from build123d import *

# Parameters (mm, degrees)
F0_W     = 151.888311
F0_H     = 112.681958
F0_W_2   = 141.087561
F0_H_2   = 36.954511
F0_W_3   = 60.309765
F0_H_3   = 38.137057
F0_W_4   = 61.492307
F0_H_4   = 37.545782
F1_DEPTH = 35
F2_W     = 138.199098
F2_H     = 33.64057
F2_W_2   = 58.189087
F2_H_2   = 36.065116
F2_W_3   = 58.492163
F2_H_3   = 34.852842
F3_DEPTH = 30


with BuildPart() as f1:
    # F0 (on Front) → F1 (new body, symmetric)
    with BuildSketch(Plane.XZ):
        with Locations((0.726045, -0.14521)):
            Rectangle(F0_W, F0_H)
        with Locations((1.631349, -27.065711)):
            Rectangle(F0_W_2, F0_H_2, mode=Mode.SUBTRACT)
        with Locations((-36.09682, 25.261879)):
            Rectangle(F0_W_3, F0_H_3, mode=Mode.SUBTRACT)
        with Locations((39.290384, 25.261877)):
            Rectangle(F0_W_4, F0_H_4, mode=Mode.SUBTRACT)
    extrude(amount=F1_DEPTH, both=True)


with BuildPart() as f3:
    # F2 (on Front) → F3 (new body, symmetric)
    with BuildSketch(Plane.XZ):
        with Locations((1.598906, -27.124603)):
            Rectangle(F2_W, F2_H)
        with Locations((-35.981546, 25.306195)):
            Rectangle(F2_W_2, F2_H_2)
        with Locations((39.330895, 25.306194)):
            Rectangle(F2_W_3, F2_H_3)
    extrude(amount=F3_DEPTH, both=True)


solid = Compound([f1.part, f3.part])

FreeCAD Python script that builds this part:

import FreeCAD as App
import Part
import Sketcher
from FreeCAD import Vector
Q = App.Units.Quantity

doc = App.newDocument("Part")
params = doc.addObject("Spreadsheet::Sheet", "Params")
for row, (alias, value) in enumerate([
    ("pad1_length", "70 mm"),
    ("pad2_length", "60 mm"),
], start=1):
    params.set(f"A{row}", alias)
    params.set(f"B{row}", "=" + value)
    params.setAlias(f"B{row}", alias)

body = doc.addObject("PartDesign::Body", "Body")

# Sketch on XZ plane
sketch1 = doc.addObject("Sketcher::SketchObject", "Sketch")
body.addObject(sketch1)
sketch1.AttachmentSupport = (doc.XZ_Plane, [""])
sketch1.MapMode = "FlatFace"
sketch1.addGeometry([
    Part.LineSegment(Vector(-75, 56, 0), Vector(-75, -56, 0)),  # 0
    Part.LineSegment(Vector(-75, -56, 0), Vector(77, -56, 0)),  # 1
    Part.LineSegment(Vector(77, -56, 0), Vector(77, 56, 0)),  # 2
    Part.LineSegment(Vector(77, 56, 0), Vector(-75, 56, 0)),  # 3
    Part.LineSegment(Vector(72, -46, 0), Vector(-69, -46, 0)),  # 4
    Part.LineSegment(Vector(-69, -46, 0), Vector(-69, -9, 0)),  # 5
    Part.LineSegment(Vector(-69, -9, 0), Vector(72, -9, 0)),  # 6
    Part.LineSegment(Vector(72, -9, 0), Vector(72, -46, 0)),  # 7
    Part.LineSegment(Vector(-6, 6, 0), Vector(-66, 6, 0)),  # 8
    Part.LineSegment(Vector(-66, 6, 0), Vector(-66, 44, 0)),  # 9
    Part.LineSegment(Vector(-66, 44, 0), Vector(-6, 44, 0)),  # 10
    Part.LineSegment(Vector(-6, 44, 0), Vector(-6, 6, 0)),  # 11
    Part.LineSegment(Vector(70, 6, 0), Vector(9, 6, 0)),  # 12
    Part.LineSegment(Vector(9, 6, 0), Vector(9, 44, 0)),  # 13
    Part.LineSegment(Vector(9, 44, 0), Vector(70, 44, 0)),  # 14
    Part.LineSegment(Vector(70, 44, 0), Vector(70, 6, 0)),  # 15
], False)
sketch1.addConstraint([
    Sketcher.Constraint("Coincident", 0, 2, 1, 1),
    Sketcher.Constraint("Coincident", 1, 2, 2, 1),
    Sketcher.Constraint("Coincident", 2, 2, 3, 1),
    Sketcher.Constraint("Coincident", 3, 2, 0, 1),
    Sketcher.Constraint("Coincident", 4, 2, 5, 1),
    Sketcher.Constraint("Coincident", 5, 2, 6, 1),
    Sketcher.Constraint("Coincident", 6, 2, 7, 1),
    Sketcher.Constraint("Coincident", 7, 2, 4, 1),
    Sketcher.Constraint("Coincident", 8, 2, 9, 1),
    Sketcher.Constraint("Coincident", 9, 2, 10, 1),
    Sketcher.Constraint("Coincident", 10, 2, 11, 1),
    Sketcher.Constraint("Coincident", 11, 2, 8, 1),
    Sketcher.Constraint("Coincident", 12, 2, 13, 1),
    Sketcher.Constraint("Coincident", 13, 2, 14, 1),
    Sketcher.Constraint("Coincident", 14, 2, 15, 1),
    Sketcher.Constraint("Coincident", 15, 2, 12, 1),
    Sketcher.Constraint("Vertical", 0),
    Sketcher.Constraint("Horizontal", 1),
    Sketcher.Constraint("Vertical", 2),
    Sketcher.Constraint("Horizontal", 3),
    Sketcher.Constraint("Horizontal", 4),
    Sketcher.Constraint("Vertical", 5),
    Sketcher.Constraint("Horizontal", 6),
    Sketcher.Constraint("Vertical", 7),
    Sketcher.Constraint("Horizontal", 8),
    Sketcher.Constraint("Vertical", 9),
    Sketcher.Constraint("Horizontal", 10),
    Sketcher.Constraint("Vertical", 11),
    Sketcher.Constraint("Horizontal", 12),
    Sketcher.Constraint("Vertical", 13),
    Sketcher.Constraint("Horizontal", 14),
    Sketcher.Constraint("Vertical", 15),
    Sketcher.Constraint("DistanceY", 13, 2, 2, 2, Q("12.161001 mm")),
    Sketcher.Constraint("DistanceX", 1, 1, 1, 2, Q("151.888311 mm")),
    Sketcher.Constraint("DistanceX", 4, 2, 4, 1, Q("141.087561 mm")),
    Sketcher.Constraint("DistanceY", 0, 2, 0, 1, Q("112.681958 mm")),
    Sketcher.Constraint("DistanceY", 5, 1, 5, 2, Q("36.954511 mm")),
    Sketcher.Constraint("DistanceX", -1, 1, 1, 2, Q("76.670201 mm")),
    Sketcher.Constraint("DistanceX", 12, 2, 6, 2, Q("63.630899 mm")),
    Sketcher.Constraint("DistanceX", 8, 2, 8, 1, Q("60.309765 mm")),
    Sketcher.Constraint("DistanceX", 12, 2, 12, 1, Q("61.492307 mm")),
    Sketcher.Constraint("DistanceY", 9, 1, 9, 2, Q("38.137057 mm")),
    Sketcher.Constraint("DistanceY", 13, 1, 13, 2, Q("37.545782 mm")),
    Sketcher.Constraint("DistanceY", 0, 2, -1, 1, Q("56.486189 mm")),
    Sketcher.Constraint("DistanceX", 4, 2, -1, 1, Q("68.912431 mm")),
    Sketcher.Constraint("DistanceY", -1, 1, 8, 2, Q("6.193351 mm")),
    Sketcher.Constraint("DistanceX", 5, 2, 8, 2, Q("2.660729 mm")),
    Sketcher.Constraint("DistanceY", 6, 2, 12, 2, Q("15.077441 mm")),
])
pad1 = doc.addObject("PartDesign::Pad", "Pad")
body.addObject(pad1)
pad1.Profile = sketch1
pad1.setExpression("Length", "Params.pad1_length")
pad1.Midplane = True
body2 = doc.addObject("PartDesign::Body", "Body001")
body2.AllowCompound = True

# Sketch on XZ plane
sketch2 = doc.addObject("Sketcher::SketchObject", "Sketch001")
body2.addObject(sketch2)
sketch2.AttachmentSupport = (doc.getObject("XZ_Plane001"), [""])
sketch2.MapMode = "FlatFace"
sketch2.addGeometry([
    Part.LineSegment(Vector(-68, -10, 0), Vector(-68, -44, 0)),  # 0
    Part.LineSegment(Vector(-68, -44, 0), Vector(71, -44, 0)),  # 1
    Part.LineSegment(Vector(71, -44, 0), Vector(71, -10, 0)),  # 2
    Part.LineSegment(Vector(71, -10, 0), Vector(-68, -10, 0)),  # 3
    Part.LineSegment(Vector(-65, 43, 0), Vector(-65, 7, 0)),  # 4
    Part.LineSegment(Vector(-65, 7, 0), Vector(-7, 7, 0)),  # 5
    Part.LineSegment(Vector(-7, 7, 0), Vector(-7, 43, 0)),  # 6
    Part.LineSegment(Vector(-7, 43, 0), Vector(-65, 43, 0)),  # 7
    Part.LineSegment(Vector(10, 43, 0), Vector(10, 8, 0)),  # 8
    Part.LineSegment(Vector(10, 8, 0), Vector(69, 8, 0)),  # 9
    Part.LineSegment(Vector(69, 8, 0), Vector(69, 43, 0)),  # 10
    Part.LineSegment(Vector(69, 43, 0), Vector(10, 43, 0)),  # 11
], False)
sketch2.addConstraint([
    Sketcher.Constraint("Coincident", 0, 2, 1, 1),
    Sketcher.Constraint("Coincident", 1, 2, 2, 1),
    Sketcher.Constraint("Coincident", 2, 2, 3, 1),
    Sketcher.Constraint("Coincident", 3, 2, 0, 1),
    Sketcher.Constraint("Coincident", 4, 2, 5, 1),
    Sketcher.Constraint("Coincident", 5, 2, 6, 1),
    Sketcher.Constraint("Coincident", 6, 2, 7, 1),
    Sketcher.Constraint("Coincident", 7, 2, 4, 1),
    Sketcher.Constraint("Coincident", 8, 2, 9, 1),
    Sketcher.Constraint("Coincident", 9, 2, 10, 1),
    Sketcher.Constraint("Coincident", 10, 2, 11, 1),
    Sketcher.Constraint("Coincident", 11, 2, 8, 1),
    Sketcher.Constraint("Vertical", 0),
    Sketcher.Constraint("Horizontal", 1),
    Sketcher.Constraint("Vertical", 2),
    Sketcher.Constraint("Horizontal", 3),
    Sketcher.Constraint("Vertical", 4),
    Sketcher.Constraint("Horizontal", 5),
    Sketcher.Constraint("Vertical", 6),
    Sketcher.Constraint("Horizontal", 7),
    Sketcher.Constraint("Vertical", 8),
    Sketcher.Constraint("Horizontal", 9),
    Sketcher.Constraint("Vertical", 10),
    Sketcher.Constraint("Horizontal", 11),
    Sketcher.Constraint("DistanceX", 1, 1, 1, 2, Q("138.199098 mm")),
    Sketcher.Constraint("DistanceY", 0, 2, 0, 1, Q("33.64057 mm")),
    Sketcher.Constraint("DistanceX", 5, 1, 5, 2, Q("58.189087 mm")),
    Sketcher.Constraint("DistanceX", 9, 1, 9, 2, Q("58.492163 mm")),
    Sketcher.Constraint("DistanceY", 4, 2, 4, 1, Q("36.065116 mm")),
    Sketcher.Constraint("DistanceY", 8, 2, 8, 1, Q("34.852842 mm")),
    Sketcher.Constraint("DistanceX", 4, 2, -1, 1, Q("65.076089 mm")),
    Sketcher.Constraint("DistanceX", 3, 2, 5, 2, Q("60.61364 mm")),
    Sketcher.Constraint("DistanceY", 3, 2, 6, 2, Q("53.643071 mm")),
    Sketcher.Constraint("DistanceY", 8, 2, 6, 2, Q("35.45898 mm")),
    Sketcher.Constraint("DistanceX", 8, 2, 2, 2, Q("60.613641 mm")),
    Sketcher.Constraint("DistanceY", 0, 2, -1, 1, Q("43.944888 mm")),
])
pad2 = doc.addObject("PartDesign::Pad", "Pad001")
body2.addObject(pad2)
pad2.Profile = sketch2
pad2.setExpression("Length", "Params.pad2_length")
pad2.Midplane = True

doc.recompute()
